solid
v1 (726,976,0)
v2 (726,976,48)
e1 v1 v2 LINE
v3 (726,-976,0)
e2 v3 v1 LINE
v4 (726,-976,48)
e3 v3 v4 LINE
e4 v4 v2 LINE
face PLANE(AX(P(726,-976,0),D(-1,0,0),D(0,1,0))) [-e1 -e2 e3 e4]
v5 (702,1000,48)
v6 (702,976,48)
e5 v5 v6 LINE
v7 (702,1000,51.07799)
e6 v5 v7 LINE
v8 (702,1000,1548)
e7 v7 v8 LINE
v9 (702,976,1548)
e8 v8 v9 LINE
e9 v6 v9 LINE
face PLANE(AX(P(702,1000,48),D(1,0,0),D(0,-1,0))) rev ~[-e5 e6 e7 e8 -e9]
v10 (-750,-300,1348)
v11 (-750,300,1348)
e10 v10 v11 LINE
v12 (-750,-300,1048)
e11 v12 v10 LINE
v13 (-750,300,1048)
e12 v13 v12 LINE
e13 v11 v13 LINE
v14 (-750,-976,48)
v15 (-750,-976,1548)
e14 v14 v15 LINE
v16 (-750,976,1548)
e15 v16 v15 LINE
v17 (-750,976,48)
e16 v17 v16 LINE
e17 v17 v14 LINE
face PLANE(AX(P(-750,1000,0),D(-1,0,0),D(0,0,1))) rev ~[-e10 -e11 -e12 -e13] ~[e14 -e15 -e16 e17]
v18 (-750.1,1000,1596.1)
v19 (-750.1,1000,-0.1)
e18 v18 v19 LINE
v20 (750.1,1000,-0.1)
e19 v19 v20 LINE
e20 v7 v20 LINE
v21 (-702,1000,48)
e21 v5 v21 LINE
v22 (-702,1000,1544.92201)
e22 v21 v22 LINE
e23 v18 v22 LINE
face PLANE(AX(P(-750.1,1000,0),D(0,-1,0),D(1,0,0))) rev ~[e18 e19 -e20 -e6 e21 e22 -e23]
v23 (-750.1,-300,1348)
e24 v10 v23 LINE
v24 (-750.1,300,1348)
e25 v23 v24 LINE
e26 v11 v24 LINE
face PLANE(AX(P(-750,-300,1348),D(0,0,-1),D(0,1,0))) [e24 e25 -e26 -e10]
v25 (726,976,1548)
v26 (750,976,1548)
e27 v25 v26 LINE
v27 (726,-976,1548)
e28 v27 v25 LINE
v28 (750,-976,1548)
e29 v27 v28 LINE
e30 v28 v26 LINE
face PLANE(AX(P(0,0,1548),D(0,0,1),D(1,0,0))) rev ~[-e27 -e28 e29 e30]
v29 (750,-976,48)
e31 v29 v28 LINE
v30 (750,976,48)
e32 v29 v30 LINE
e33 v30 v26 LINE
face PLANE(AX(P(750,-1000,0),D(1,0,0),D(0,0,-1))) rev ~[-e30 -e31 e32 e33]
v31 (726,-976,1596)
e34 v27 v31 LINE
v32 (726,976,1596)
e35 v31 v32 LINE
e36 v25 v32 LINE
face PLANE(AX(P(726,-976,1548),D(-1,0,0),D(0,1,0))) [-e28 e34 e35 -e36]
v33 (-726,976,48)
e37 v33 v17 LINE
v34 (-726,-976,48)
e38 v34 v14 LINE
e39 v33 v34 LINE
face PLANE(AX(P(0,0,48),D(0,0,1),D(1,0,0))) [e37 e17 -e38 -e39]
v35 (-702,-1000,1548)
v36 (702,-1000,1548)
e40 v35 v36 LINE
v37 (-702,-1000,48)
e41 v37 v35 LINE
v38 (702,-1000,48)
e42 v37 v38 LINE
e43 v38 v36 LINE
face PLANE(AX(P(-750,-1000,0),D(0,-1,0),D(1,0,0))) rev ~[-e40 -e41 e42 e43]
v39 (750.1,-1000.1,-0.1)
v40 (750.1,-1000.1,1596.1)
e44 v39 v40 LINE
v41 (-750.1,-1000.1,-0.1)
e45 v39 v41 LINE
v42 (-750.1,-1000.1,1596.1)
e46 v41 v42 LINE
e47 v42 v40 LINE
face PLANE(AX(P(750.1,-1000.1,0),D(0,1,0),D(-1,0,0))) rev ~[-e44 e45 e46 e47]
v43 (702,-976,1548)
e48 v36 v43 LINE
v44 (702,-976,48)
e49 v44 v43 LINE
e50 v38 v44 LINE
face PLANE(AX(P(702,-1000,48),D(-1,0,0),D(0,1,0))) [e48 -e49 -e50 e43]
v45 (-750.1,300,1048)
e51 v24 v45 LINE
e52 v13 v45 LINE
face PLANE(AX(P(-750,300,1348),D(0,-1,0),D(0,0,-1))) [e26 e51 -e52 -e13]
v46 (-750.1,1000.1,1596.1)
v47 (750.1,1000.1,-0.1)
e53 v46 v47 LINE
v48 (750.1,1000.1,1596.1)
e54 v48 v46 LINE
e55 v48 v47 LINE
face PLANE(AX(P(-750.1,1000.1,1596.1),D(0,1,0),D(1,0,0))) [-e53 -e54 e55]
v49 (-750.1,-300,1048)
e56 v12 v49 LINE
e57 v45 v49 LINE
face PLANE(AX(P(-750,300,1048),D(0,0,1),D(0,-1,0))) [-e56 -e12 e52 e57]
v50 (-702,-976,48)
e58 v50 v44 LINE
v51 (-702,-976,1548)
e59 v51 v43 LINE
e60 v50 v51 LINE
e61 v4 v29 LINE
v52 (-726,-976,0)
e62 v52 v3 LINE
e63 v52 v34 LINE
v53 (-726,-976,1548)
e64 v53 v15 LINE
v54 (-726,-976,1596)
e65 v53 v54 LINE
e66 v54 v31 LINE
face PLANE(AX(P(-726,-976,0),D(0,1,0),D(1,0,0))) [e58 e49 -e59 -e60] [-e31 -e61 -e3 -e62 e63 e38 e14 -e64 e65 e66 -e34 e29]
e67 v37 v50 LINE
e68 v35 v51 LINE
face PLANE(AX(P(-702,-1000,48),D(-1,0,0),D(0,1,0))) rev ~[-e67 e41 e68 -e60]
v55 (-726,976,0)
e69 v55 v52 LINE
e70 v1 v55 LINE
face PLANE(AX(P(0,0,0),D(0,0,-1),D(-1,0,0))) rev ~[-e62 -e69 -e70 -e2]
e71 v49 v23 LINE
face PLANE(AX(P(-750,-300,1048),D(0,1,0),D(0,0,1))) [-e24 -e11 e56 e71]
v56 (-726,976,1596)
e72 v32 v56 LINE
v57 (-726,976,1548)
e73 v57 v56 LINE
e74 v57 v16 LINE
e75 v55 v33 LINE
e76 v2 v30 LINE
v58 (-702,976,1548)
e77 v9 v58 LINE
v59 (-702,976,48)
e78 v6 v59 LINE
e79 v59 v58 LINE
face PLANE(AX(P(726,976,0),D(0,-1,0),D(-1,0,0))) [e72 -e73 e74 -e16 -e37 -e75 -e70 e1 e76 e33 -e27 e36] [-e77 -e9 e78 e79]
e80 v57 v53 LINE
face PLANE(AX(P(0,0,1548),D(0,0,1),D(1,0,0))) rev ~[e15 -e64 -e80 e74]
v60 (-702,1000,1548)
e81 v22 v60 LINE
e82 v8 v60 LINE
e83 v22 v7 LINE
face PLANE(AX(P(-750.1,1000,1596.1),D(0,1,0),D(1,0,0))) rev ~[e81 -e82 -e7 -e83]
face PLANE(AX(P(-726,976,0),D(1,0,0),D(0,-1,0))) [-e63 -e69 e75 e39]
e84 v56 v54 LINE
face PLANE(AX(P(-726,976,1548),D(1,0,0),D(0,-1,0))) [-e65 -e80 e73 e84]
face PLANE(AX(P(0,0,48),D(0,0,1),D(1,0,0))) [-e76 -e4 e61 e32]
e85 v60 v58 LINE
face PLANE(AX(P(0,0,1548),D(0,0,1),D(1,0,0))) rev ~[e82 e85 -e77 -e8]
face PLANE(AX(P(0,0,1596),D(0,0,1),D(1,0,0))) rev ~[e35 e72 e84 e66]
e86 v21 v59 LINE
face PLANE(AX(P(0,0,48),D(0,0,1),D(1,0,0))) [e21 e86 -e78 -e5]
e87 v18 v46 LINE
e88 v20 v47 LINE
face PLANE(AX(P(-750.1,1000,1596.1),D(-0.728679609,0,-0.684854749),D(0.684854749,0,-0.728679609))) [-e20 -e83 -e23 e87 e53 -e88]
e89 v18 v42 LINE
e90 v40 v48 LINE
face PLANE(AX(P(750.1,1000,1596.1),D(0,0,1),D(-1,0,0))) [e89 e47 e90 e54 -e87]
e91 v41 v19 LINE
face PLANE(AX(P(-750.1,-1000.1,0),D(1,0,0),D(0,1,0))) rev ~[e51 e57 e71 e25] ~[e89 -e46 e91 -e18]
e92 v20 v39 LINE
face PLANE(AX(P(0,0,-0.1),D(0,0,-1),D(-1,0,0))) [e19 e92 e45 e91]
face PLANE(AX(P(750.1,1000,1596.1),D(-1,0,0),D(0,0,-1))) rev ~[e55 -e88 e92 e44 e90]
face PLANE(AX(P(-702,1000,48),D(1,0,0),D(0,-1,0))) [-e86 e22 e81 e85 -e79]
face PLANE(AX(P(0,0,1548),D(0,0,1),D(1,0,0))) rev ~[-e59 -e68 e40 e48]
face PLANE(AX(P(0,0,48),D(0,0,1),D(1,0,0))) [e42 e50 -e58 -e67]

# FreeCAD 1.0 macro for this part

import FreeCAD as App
import Part
import Sketcher


def add_polygon(sketch, points):
    """Adds a closed chain of lines whose ends are joined by coincident constraints."""
    first, n = sketch.GeometryCount, len(points)
    for a, b in zip(points, points[1:] + points[:1]):
        sketch.addGeometry(Part.LineSegment(App.Vector(*a, 0), App.Vector(*b, 0)), False)
    for i in range(n):
        sketch.addConstraint(Sketcher.Constraint("Coincident", first + i, 2, first + (i + 1) % n, 1))

doc = App.newDocument("Part")
body = doc.addObject("PartDesign::Body", "Body")

sketch1 = body.newObject("Sketcher::SketchObject", "Sketch")
sketch1.AttachmentSupport = (doc.getObject("XY_Plane"), [""])
sketch1.MapMode = "FlatFace"
add_polygon(sketch1, [(750, -1000), (750, 1000), (-750, 1000), (-750, -1000)])
add_polygon(sketch1, [(-726, 976), (726, 976), (726, -976), (-726, -976)])
sketch1.addConstraint([
    Sketcher.Constraint("Vertical", 0),
    Sketcher.Constraint("Horizontal", 1),
    Sketcher.Constraint("Vertical", 2),
    Sketcher.Constraint("Horizontal", 3),
    Sketcher.Constraint("Horizontal", 4),
    Sketcher.Constraint("Vertical", 5),
    Sketcher.Constraint("Horizontal", 6),
    Sketcher.Constraint("Vertical", 7),
    Sketcher.Constraint("Symmetric", 0, 2, 2, 2, -1, 1),
    Sketcher.Constraint("Symmetric", 4, 2, 6, 2, -1, 1),
    Sketcher.Constraint("DistanceX", 1, 2, 1, 1, 1500.0),
    Sketcher.Constraint("DistanceY", 0, 1, 0, 2, 2000.0),
    Sketcher.Constraint("DistanceX", 4, 2, 0, 2, 24.0),
    Sketcher.Constraint("DistanceY", 4, 2, 0, 2, 24.0),
])
pad1 = body.newObject("PartDesign::Pad", "Pad")
pad1.Profile = sketch1
pad1.Length = 48

sketch2 = body.newObject("Sketcher::SketchObject", "Sketch001")
sketch2.AttachmentSupport = (doc.getObject("XY_Plane"), [""])
sketch2.MapMode = "FlatFace"
sketch2.AttachmentOffset = App.Placement(App.Vector(0, 0, 48), App.Rotation())
add_polygon(sketch2, [(702, -1000), (750, -1000), (750, -976), (702, -976)])
add_polygon(sketch2, [(-750, -976), (-750, -1000), (-702, -1000), (-702, -976)])
add_polygon(sketch2, [(-702, 1000), (-750, 1000), (-750, 976), (-702, 976)])
add_polygon(sketch2, [(750, 976), (750, 1000), (702, 1000), (702, 976)])
sketch2.addConstraint([
    Sketcher.Constraint("Horizontal", 0),
    Sketcher.Constraint("Vertical", 1),
    Sketcher.Constraint("Horizontal", 2),
    Sketcher.Constraint("Vertical", 3),
    Sketcher.Constraint("Vertical", 4),
    Sketcher.Constraint("Horizontal", 5),
    Sketcher.Constraint("Vertical", 6),
    Sketcher.Constraint("Horizontal", 7),
    Sketcher.Constraint("Horizontal", 8),
    Sketcher.Constraint("Vertical", 9),
    Sketcher.Constraint("Horizontal", 10),
    Sketcher.Constraint("Vertical", 11),
    Sketcher.Constraint("Vertical", 12),
    Sketcher.Constraint("Horizontal", 13),
    Sketcher.Constraint("Vertical", 14),
    Sketcher.Constraint("Horizontal", 15),
    Sketcher.Constraint("Symmetric", 0, 2, 8, 2, -1, 1),
    Sketcher.Constraint("Symmetric", 2, 2, 10, 2, -1, 1),
    Sketcher.Constraint("Symmetric", 4, 2, 12, 2, -1, 1),
    Sketcher.Constraint("Symmetric", 6, 2, 14, 2, -1, 1),
    Sketcher.Constraint("Symmetric", 0, 2, 4, 2, -2),
    Sketcher.Constraint("Symmetric", 2, 2, 6, 2, -2),
    Sketcher.Constraint("DistanceX", 0, 1, 0, 2, 48.0),
    Sketcher.Constraint("DistanceY", 1, 1, 1, 2, 24.0),
    Sketcher.Constraint("DistanceX", -1, 1, 0, 2, 750.0),
    Sketcher.Constraint("DistanceY", 0, 2, -1, 1, 1000.0),
])
pad2 = body.newObject("PartDesign::Pad", "Pad001")
pad2.Profile = sketch2
pad2.Length = 1500

sketch3 = body.newObject("Sketcher::SketchObject", "Sketch002")
sketch3.AttachmentSupport = (doc.getObject("XY_Plane"), [""])
sketch3.MapMode = "FlatFace"
sketch3.AttachmentOffset = App.Placement(App.Vector(0, 0, 1548), App.Rotation())
add_polygon(sketch3, [(750, -1000), (750, 1000), (-750, 1000), (-750, -1000)])
add_polygon(sketch3, [(726, -976), (-726, -976), (-726, 976), (726, 976)])
sketch3.addConstraint([
    Sketcher.Constraint("Vertical", 0),
    Sketcher.Constraint("Horizontal", 1),
    Sketcher.Constraint("Vertical", 2),
    Sketcher.Constraint("Horizontal", 3),
    Sketcher.Constraint("Horizontal", 4),
    Sketcher.Constraint("Vertical", 5),
    Sketcher.Constraint("Horizontal", 6),
    Sketcher.Constraint("Vertical", 7),
    Sketcher.Constraint("Symmetric", 0, 2, 2, 2, -1, 1),
    Sketcher.Constraint("Symmetric", 4, 2, 6, 2, -1, 1),
    Sketcher.Constraint("DistanceX", 2, 2, 4, 2, 24.0),
    Sketcher.Constraint("DistanceY", 2, 2, 4, 2, 24.0),
    Sketcher.Constraint("DistanceX", 1, 2, 1, 1, 1500.0),
    Sketcher.Constraint("DistanceY", 0, 1, 0, 2, 2000.0),
])
pad3 = body.newObject("PartDesign::Pad", "Pad002")
pad3.Profile = sketch3
pad3.Length = 48

sketch4 = body.newObject("Sketcher::SketchObject", "Sketch003")
sketch4.AttachmentSupport = (doc.getObject("YZ_Plane"), [""])
sketch4.MapMode = "FlatFace"
sketch4.AttachmentOffset = App.Placement(App.Vector(0, 0, 750), App.Rotation())
add_polygon(sketch4, [(1000, 1596), (-1000, 1596), (-1000, 0), (1000, 0)])
sketch4.addConstraint([
    Sketcher.Constraint("Horizontal", 0),
    Sketcher.Constraint("Vertical", 1),
    Sketcher.Constraint("Horizontal", 2),
    Sketcher.Constraint("Vertical", 3),
    Sketcher.Constraint("Symmetric", 1, 2, 2, 2, -1, 1),
    Sketcher.Constraint("DistanceX", 0, 2, 0, 1, 2000.0),
    Sketcher.Constraint("DistanceY", 1, 2, 1, 1, 1596.0),
])
pad4 = body.newObject("PartDesign::Pad", "Pad003")
pad4.Profile = sketch4
pad4.Length = 0.1

sketch5 = body.newObject("Sketcher::SketchObject", "Sketch004")
sketch5.AttachmentSupport = (doc.getObject("XZ_Plane"), [""])
sketch5.MapMode = "FlatFace"
sketch5.AttachmentOffset = App.Placement(App.Vector(0, 0, 1000), App.Rotation())
add_polygon(sketch5, [(750, 1596), (-750, 1596), (-750, 0), (750, 0)])
sketch5.addConstraint([
    Sketcher.Constraint("Horizontal", 0),
    Sketcher.Constraint("Vertical", 1),
    Sketcher.Constraint("Horizontal", 2),
    Sketcher.Constraint("Vertical", 3),
    Sketcher.Constraint("PointOnObject", 1, 2, -1),
    Sketcher.Constraint("DistanceY", 1, 2, 1, 1, 1596.0),
    Sketcher.Constraint("DistanceX", 0, 2, 0, 1, 1500.1),
    Sketcher.Constraint("DistanceX", 0, 2, -1, 1, 750.0),
])
pad5 = body.newObject("PartDesign::Pad", "Pad004")
pad5.Profile = sketch5
pad5.Length = 0.1

sketch6 = body.newObject("Sketcher::SketchObject", "Sketch005")
sketch6.AttachmentSupport = (doc.getObject("YZ_Plane"), [""])
sketch6.MapMode = "FlatFace"
sketch6.AttachmentOffset = App.Placement(App.Vector(0, 0, -750), App.Rotation())
add_polygon(sketch6, [(-1000, 1596), (1000, 1596), (1000, 0), (-1000, 0)])
add_polygon(sketch6, [(300, 1048), (300, 1348), (-300, 1348), (-300, 1048)])
sketch6.addConstraint([
    Sketcher.Constraint("Horizontal", 0),
    Sketcher.Constraint("Vertical", 1),
    Sketcher.Constraint("Horizontal", 2),
    Sketcher.Constraint("Vertical", 3),
    Sketcher.Constraint("Vertical", 4),
    Sketcher.Constraint("Horizontal", 5),
    Sketcher.Constraint("Vertical", 6),
    Sketcher.Constraint("Horizontal", 7),
    Sketcher.Constraint("PointOnObject", 1, 2, -1),
    Sketcher.Constraint("DistanceX", 5, 2, 5, 1, 600.0),
    Sketcher.Constraint("DistanceY", 4, 1, 4, 2, 300.0),
    Sketcher.Constraint("DistanceX", -1, 1, 0, 2, 1000.0),
    Sketcher.Constraint("DistanceX", -1, 1, 4, 2, 300.0),
    Sketcher.Constraint("DistanceY", 1, 2, 1, 1, 1596.0),
    Sketcher.Constraint("DistanceX", 0, 1, 0, 2, 2000.1),
    Sketcher.Constraint("DistanceY", -1, 1, 4, 2, 1348.0),
])
pad6 = body.newObject("PartDesign::Pad", "Pad005")
pad6.Profile = sketch6
pad6.Length = 0.1
pad6.Reversed = True

sketch7 = body.newObject("Sketcher::SketchObject", "Sketch006")
sketch7.AttachmentSupport = (doc.getObject("XY_Plane"), [""])
sketch7.MapMode = "FlatFace"
sketch7.AttachmentOffset = App.Placement(App.Vector(0, 0, 1596), App.Rotation())
add_polygon(sketch7, [(750, -1000), (750, 1000), (-750, 1000), (-750, -1000)])
sketch7.addConstraint([
    Sketcher.Constraint("Vertical", 0),
    Sketcher.Constraint("Horizontal", 1),
    Sketcher.Constraint("Vertical", 2),
    Sketcher.Constraint("Horizontal", 3),
    Sketcher.Constraint("DistanceX", 1, 2, 1, 1, 1500.2),
    Sketcher.Constraint("DistanceY", 0, 1, 0, 2, 2000.1),
    Sketcher.Constraint("DistanceY", -1, 1, 0, 2, 1000.0),
    Sketcher.Constraint("DistanceX", -1, 1, 0, 2, 750.1),
])
pad7 = body.newObject("PartDesign::Pad", "Pad006")
pad7.Profile = sketch7
pad7.Length = 0.1

sketch8 = body.newObject("Sketcher::SketchObject", "Sketch007")
sketch8.AttachmentSupport = (doc.getObject("XY_Plane"), [""])
sketch8.MapMode = "FlatFace"
add_polygon(sketch8, [(-750, -1000), (-750, 1000), (750, 1000), (750, -1000)])
sketch8.addConstraint([
    Sketcher.Constraint("Vertical", 0),
    Sketcher.Constraint("Horizontal", 1),
    Sketcher.Constraint("Vertical", 2),
    Sketcher.Constraint("Horizontal", 3),
    Sketcher.Constraint("DistanceX", 1, 1, 1, 2, 1500.2),
    Sketcher.Constraint("DistanceY", 0, 1, 0, 2, 2000.1),
    Sketcher.Constraint("DistanceY", -1, 1, 0, 2, 1000.0),
    Sketcher.Constraint("DistanceX", 0, 2, -1, 1, 750.1),
])
pad8 = body.newObject("PartDesign::Pad", "Pad007")
pad8.Profile = sketch8
pad8.Length = 0.1
pad8.Reversed = True

sketch9 = body.newObject("Sketcher::SketchObject", "Sketch008")
sketch9.AttachmentSupport = (doc.getObject("XZ_Plane"), [""])
sketch9.MapMode = "FlatFace"
sketch9.AttachmentOffset = App.Placement(App.Vector(0, 0, -1000), App.Rotation())
add_polygon(sketch9, [(750, 0), (-750, 1596), (750, 1596)])
sketch9.addConstraint([
    Sketcher.Constraint("Horizontal", 1),
    Sketcher.Constraint("Vertical", 2),
    Sketcher.Constraint("DistanceX", 1, 1, 1, 2, 1500.2),
    Sketcher.Constraint("DistanceY", 2, 2, 2, 1, 1596.2),
    Sketcher.Constraint("DistanceX", 0, 2, -1, 1, 750.1),
    Sketcher.Constraint("DistanceY", -1, 1, 0, 2, 1596.1),
])
pad9 = body.newObject("PartDesign::Pad", "Pad008")
pad9.Profile = sketch9
pad9.Length = 0.1
pad9.Reversed = True

doc.recompute()
